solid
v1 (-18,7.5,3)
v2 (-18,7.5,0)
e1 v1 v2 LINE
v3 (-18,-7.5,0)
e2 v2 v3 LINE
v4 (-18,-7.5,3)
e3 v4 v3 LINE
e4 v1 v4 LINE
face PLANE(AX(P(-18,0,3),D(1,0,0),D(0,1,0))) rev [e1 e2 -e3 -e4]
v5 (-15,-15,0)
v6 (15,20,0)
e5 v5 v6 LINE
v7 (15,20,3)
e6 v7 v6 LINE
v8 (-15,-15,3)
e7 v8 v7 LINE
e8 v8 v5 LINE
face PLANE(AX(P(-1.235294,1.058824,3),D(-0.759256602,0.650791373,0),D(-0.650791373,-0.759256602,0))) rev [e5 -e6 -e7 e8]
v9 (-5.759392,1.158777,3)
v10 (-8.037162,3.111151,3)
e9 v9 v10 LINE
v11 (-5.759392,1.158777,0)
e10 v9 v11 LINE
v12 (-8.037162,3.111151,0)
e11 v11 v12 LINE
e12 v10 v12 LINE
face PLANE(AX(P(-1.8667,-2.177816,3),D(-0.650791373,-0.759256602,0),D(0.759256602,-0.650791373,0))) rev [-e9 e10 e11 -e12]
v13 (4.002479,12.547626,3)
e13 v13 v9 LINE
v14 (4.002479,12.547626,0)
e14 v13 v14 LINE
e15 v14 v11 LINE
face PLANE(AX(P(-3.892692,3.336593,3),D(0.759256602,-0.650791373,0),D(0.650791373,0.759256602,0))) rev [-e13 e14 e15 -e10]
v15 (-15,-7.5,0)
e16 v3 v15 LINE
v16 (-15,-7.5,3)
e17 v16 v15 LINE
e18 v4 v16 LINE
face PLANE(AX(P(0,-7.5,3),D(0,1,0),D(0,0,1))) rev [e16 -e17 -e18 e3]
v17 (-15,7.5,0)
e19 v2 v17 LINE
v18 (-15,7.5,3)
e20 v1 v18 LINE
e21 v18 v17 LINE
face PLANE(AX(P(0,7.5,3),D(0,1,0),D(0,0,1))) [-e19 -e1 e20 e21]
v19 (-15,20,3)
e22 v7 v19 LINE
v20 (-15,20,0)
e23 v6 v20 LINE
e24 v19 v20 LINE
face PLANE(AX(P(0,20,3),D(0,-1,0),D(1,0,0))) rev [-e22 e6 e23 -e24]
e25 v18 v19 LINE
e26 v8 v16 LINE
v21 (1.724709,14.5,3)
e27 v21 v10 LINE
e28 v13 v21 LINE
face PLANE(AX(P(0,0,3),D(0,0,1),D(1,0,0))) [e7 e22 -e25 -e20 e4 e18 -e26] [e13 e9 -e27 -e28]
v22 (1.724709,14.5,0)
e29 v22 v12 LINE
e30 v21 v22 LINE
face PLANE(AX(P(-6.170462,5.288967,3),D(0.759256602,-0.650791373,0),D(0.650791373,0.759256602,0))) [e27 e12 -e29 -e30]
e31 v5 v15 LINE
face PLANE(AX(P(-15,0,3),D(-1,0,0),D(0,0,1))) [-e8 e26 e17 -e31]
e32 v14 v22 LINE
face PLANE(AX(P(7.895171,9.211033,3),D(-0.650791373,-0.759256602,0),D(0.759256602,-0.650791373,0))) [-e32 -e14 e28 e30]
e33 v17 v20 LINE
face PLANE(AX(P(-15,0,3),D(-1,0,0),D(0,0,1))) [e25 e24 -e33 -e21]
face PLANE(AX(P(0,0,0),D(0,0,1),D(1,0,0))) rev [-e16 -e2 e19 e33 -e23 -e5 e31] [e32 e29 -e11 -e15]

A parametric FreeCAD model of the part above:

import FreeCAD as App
import Part
import Sketcher


def add_polygon(sketch, points):
    """Adds a closed chain of lines whose ends are joined by coincident constraints."""
    first, n = sketch.GeometryCount, len(points)
    for a, b in zip(points, points[1:] + points[:1]):
        sketch.addGeometry(Part.LineSegment(App.Vector(*a, 0), App.Vector(*b, 0)), False)
    for i in range(n):
        sketch.addConstraint(Sketcher.Constraint("Coincident", first + i, 2, first + (i + 1) % n, 1))

doc = App.newDocument("Part")
body = doc.addObject("PartDesign::Body", "Body")

sketch1 = doc.addObject("Sketcher::SketchObject", "Sketch")
body.addObject(sketch1)
sketch1.AttachmentSupport = (doc.XY_Plane, [""])
sketch1.MapMode = "FlatFace"
add_polygon(sketch1, [(-15, -15), (15, 20), (-15, 20), (-15, 7.5), (-18, 7.5), (-18, -7.5), (-15, -7.5)])
add_polygon(sketch1, [(-8, 3.1), (1.7, 14.5), (4, 12.5), (-5.8, 1.2)])
sketch1.addConstraint([
    Sketcher.Constraint("Horizontal", 1),
    Sketcher.Constraint("Vertical", 2),
    Sketcher.Constraint("Horizontal", 3),
    Sketcher.Constraint("Vertical", 4),
    Sketcher.Constraint("Horizontal", 5),
    Sketcher.Constraint("Vertical", 6),
    Sketcher.Constraint("Symmetric", 2, 2, 5, 2, -1),
    Sketcher.Constraint("Parallel", 0, 7),
    Sketcher.Constraint("Perpendicular", 7, 8),
    Sketcher.Constraint("Perpendicular", 8, 9),
    Sketcher.Constraint("Perpendicular", 9, 10),
    Sketcher.Constraint("DistanceX", 1, 2, 1, 1, 30.0),
    Sketcher.Constraint("DistanceX", 3, 2, 3, 1, 3.0),
    Sketcher.Constraint("DistanceY", 4, 2, 4, 1, 15.0),
    Sketcher.Constraint("Distance", 7, 15.0),
    Sketcher.Constraint("Distance", 8, 3.0),
    Sketcher.Constraint("DistanceY", 2, 2, 2, 1, 12.5),
    Sketcher.Constraint("DistanceY", 6, 2, 6, 1, 7.5),
    Sketcher.Constraint("DistanceX", -1, 1, 0, 2, 15.0),
    Sketcher.Constraint("DistanceY", 2, 2, 7, 2, 7.0),
    Sketcher.Constraint("DistanceX", -1, 1, 7, 2, 1.724709),
])
pad1 = doc.addObject("PartDesign::Pad", "Pad")
body.addObject(pad1)
pad1.Profile = sketch1
pad1.Length = 3

doc.recompute()
